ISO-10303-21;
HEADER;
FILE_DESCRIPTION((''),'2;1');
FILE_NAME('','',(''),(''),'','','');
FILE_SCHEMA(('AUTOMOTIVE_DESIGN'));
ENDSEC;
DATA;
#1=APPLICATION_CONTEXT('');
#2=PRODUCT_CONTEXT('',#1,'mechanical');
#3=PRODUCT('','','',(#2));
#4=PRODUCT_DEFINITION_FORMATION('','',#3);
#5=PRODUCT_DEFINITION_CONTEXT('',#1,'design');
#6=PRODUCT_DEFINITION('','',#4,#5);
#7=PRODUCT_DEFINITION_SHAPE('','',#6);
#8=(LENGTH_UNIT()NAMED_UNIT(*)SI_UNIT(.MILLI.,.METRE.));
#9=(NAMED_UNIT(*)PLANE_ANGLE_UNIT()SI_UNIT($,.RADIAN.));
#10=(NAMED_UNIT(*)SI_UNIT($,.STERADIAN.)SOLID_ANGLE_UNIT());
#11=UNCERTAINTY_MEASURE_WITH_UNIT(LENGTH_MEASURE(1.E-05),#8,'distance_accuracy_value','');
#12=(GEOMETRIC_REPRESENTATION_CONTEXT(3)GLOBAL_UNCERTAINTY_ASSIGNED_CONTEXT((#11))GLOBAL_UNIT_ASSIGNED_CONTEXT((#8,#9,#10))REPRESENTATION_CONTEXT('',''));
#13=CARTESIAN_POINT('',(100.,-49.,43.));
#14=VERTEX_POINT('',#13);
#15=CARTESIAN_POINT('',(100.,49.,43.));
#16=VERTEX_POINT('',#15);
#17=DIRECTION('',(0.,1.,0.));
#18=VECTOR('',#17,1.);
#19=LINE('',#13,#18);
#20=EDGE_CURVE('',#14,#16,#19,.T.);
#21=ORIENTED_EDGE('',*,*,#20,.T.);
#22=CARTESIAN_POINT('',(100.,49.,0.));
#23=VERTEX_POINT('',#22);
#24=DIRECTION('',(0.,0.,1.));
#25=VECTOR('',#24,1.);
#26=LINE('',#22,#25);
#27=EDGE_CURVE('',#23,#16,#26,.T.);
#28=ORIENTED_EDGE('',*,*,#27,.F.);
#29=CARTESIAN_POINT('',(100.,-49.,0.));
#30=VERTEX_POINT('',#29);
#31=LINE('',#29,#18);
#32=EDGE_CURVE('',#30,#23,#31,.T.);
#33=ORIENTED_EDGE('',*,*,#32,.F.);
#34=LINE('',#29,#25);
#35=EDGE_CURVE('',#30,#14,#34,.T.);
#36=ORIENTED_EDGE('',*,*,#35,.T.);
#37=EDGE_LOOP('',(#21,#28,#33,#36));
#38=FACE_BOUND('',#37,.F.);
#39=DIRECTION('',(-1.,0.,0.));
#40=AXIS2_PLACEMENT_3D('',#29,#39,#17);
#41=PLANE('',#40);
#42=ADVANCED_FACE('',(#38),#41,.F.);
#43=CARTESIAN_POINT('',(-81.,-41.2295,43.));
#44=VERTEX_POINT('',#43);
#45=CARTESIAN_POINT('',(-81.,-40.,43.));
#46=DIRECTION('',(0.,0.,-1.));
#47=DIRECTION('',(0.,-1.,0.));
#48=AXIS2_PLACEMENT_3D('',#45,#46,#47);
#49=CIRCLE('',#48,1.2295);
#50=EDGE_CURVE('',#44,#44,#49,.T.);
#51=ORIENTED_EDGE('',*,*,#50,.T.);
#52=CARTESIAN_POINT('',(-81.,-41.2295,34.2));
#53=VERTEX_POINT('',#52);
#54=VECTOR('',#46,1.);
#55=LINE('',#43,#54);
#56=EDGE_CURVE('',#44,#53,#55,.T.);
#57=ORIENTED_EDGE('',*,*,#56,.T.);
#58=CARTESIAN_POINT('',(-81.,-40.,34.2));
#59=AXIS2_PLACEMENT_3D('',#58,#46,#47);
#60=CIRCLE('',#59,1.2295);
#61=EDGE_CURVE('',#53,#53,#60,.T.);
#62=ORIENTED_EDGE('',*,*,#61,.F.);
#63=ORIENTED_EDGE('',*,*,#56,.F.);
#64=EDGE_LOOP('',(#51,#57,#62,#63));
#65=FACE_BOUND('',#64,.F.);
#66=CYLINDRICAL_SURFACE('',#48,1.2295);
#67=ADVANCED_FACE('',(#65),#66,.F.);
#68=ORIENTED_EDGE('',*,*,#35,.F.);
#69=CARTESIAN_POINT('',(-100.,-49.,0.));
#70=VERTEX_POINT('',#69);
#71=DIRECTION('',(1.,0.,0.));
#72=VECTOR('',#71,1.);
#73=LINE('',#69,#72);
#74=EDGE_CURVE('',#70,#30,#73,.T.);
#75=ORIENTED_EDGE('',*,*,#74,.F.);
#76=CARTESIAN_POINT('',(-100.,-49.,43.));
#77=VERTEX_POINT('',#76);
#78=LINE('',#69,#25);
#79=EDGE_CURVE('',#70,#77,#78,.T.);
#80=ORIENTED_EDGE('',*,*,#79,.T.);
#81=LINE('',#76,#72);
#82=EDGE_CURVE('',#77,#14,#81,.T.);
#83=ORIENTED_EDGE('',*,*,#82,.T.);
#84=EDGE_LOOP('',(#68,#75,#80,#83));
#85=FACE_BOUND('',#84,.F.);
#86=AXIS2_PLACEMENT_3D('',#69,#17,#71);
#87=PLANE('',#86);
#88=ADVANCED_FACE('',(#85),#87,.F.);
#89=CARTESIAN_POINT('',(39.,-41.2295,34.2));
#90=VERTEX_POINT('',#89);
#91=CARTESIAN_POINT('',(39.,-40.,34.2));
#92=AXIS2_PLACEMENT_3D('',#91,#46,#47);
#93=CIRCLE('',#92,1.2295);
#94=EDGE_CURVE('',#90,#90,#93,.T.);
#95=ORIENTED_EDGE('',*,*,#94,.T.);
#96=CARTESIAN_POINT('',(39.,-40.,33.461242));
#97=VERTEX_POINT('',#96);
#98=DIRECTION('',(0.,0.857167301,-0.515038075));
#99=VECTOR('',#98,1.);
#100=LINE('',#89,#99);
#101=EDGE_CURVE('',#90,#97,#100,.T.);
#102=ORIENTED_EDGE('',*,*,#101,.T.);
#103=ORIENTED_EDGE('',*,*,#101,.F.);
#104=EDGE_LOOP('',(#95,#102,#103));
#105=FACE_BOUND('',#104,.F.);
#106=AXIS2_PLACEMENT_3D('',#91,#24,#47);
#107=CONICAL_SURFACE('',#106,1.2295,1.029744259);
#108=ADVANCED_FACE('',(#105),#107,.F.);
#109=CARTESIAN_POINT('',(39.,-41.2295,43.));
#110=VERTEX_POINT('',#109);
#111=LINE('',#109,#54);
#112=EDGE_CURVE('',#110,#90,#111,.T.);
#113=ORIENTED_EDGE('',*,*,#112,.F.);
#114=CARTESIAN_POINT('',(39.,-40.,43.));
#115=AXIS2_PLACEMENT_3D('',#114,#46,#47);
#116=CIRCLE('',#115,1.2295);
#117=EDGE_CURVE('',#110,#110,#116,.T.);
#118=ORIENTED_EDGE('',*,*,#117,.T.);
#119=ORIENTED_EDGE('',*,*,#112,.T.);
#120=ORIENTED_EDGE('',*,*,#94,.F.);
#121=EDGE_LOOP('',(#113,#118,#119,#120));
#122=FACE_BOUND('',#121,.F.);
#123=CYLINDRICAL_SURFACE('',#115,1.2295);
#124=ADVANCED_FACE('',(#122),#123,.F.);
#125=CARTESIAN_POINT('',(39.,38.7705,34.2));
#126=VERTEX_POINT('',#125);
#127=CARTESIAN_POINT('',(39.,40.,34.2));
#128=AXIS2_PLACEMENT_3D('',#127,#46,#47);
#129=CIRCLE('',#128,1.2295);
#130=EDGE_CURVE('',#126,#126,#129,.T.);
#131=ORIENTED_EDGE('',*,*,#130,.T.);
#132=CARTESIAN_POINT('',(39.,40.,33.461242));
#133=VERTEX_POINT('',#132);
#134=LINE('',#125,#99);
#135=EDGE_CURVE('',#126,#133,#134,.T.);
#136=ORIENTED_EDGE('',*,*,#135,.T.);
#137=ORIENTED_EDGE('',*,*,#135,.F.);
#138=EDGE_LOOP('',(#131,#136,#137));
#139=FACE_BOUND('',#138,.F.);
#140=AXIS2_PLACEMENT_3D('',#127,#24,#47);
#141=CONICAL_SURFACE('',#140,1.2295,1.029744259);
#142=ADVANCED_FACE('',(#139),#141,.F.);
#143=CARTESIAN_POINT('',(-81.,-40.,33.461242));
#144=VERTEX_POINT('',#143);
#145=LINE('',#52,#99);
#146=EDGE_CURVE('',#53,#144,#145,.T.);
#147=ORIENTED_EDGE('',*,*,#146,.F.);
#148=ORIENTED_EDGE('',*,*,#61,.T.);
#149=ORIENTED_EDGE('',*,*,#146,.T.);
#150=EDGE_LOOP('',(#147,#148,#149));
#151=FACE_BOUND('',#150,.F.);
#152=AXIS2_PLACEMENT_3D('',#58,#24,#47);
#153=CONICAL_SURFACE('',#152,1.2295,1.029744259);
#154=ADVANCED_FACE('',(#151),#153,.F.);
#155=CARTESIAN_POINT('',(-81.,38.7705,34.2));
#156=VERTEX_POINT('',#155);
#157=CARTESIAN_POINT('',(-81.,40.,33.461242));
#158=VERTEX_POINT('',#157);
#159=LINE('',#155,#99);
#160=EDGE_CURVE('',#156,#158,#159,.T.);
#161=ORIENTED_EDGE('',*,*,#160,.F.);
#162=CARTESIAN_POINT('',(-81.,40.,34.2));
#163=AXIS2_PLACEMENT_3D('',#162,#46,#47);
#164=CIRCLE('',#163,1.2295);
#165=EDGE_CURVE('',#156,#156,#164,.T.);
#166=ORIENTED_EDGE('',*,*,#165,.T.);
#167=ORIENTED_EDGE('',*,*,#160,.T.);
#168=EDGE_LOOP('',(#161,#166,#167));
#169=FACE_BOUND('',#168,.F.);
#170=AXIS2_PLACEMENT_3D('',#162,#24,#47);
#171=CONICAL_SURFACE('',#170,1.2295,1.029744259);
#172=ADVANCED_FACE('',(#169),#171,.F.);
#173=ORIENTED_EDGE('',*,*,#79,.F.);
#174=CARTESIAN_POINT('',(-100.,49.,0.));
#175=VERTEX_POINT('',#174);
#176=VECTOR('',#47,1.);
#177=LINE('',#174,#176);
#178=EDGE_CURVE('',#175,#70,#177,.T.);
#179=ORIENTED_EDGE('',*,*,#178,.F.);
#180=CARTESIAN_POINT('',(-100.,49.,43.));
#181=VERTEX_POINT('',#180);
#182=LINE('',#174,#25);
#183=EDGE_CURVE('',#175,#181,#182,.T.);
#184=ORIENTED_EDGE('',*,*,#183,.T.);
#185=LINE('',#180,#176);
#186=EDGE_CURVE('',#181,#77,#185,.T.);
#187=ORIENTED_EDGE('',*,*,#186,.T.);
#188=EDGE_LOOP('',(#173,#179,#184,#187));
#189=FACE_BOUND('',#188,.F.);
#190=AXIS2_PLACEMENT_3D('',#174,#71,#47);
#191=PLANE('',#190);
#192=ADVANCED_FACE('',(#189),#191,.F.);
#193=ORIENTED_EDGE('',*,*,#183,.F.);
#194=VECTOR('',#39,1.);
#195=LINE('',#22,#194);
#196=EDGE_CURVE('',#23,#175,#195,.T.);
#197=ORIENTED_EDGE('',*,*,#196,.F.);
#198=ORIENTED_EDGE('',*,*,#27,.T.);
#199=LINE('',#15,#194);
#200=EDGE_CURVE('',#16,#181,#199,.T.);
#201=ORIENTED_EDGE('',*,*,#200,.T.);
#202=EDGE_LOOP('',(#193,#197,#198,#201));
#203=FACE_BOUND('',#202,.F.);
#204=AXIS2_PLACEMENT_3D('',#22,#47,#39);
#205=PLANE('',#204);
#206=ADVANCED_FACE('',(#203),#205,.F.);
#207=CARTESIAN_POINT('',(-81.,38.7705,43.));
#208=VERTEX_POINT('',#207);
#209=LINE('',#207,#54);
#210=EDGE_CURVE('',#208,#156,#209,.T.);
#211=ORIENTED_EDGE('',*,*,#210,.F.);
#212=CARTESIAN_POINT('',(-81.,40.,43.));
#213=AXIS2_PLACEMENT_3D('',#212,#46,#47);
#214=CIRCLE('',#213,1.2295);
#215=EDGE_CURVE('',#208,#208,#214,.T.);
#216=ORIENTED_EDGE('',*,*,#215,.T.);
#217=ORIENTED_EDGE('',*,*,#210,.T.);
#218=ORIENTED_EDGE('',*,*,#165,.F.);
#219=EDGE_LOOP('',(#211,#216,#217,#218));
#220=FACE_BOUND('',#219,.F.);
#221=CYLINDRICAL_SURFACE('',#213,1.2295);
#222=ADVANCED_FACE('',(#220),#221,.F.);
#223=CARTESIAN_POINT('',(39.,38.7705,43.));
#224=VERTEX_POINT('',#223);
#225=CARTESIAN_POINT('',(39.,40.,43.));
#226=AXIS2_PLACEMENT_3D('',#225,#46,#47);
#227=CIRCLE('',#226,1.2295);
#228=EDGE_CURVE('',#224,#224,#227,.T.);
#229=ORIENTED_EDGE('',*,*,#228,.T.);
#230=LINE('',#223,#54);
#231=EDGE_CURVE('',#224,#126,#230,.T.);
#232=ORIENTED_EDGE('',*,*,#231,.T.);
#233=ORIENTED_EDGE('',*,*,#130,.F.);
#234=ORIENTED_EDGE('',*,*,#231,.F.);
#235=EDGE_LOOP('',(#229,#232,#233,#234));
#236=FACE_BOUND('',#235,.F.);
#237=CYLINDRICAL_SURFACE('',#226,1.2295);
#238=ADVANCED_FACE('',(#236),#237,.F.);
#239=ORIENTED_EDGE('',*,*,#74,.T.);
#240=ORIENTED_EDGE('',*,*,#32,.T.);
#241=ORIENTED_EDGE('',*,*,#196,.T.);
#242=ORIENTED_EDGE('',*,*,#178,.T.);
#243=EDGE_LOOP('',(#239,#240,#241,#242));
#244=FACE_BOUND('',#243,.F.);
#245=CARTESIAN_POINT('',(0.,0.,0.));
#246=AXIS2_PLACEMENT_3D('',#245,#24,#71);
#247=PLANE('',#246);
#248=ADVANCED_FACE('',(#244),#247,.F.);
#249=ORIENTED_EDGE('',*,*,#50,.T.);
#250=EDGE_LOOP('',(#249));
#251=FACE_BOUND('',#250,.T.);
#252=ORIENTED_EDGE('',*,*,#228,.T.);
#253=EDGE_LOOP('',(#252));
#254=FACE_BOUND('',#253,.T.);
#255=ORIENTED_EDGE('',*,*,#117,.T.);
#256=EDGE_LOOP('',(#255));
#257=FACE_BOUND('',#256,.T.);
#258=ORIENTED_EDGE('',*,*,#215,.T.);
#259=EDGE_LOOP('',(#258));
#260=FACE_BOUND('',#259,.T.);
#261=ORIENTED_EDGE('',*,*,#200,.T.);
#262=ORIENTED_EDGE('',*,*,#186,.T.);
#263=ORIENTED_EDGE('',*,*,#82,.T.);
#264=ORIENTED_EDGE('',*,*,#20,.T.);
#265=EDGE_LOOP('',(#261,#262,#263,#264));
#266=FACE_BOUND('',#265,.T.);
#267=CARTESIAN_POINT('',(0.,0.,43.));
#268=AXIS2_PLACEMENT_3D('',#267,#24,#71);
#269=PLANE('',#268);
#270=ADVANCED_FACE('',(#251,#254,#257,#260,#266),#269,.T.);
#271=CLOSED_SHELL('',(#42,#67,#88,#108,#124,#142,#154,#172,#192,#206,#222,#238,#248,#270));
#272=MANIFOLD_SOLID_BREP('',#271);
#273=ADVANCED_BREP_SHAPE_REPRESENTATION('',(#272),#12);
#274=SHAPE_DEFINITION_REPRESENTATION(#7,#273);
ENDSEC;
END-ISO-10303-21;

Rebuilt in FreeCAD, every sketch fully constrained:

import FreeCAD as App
import Part
import Sketcher
from FreeCAD import Vector
Q = App.Units.Quantity


def add_polygon(sketch, points):
    """Adds a closed chain of lines whose ends are joined by coincident constraints."""
    first, n = sketch.GeometryCount, len(points)
    for a, b in zip(points, points[1:] + points[:1]):
        sketch.addGeometry(Part.LineSegment(App.Vector(*a, 0), App.Vector(*b, 0)), False)
    for i in range(n):
        sketch.addConstraint(Sketcher.Constraint("Coincident", first + i, 2, first + (i + 1) % n, 1))

doc = App.newDocument("Part")
params = doc.addObject("Spreadsheet::Sheet", "Params")
for row, (alias, value) in enumerate([
    ("sketch1_width", "200 mm"),
    ("sketch1_height", "98 mm"),
    ("pad1_length", "43 mm"),
    ("hole_diameter", "2.459 mm"),
    ("hole_depth", "8.8 mm"),
], start=1):
    params.set(f"A{row}", alias)
    params.set(f"B{row}", "=" + value)
    params.setAlias(f"B{row}", alias)

body = doc.addObject("PartDesign::Body", "Body")

# Sketch on XY plane
sketch1 = body.newObject("Sketcher::SketchObject", "Sketch")
sketch1.AttachmentSupport = (doc.getObject("XY_Plane"), [""])
sketch1.MapMode = "FlatFace"
add_polygon(sketch1, [(-100, 49), (-100, -49), (100, -49), (100, 49)])  # lines 0-3
sketch1.addConstraint([
    Sketcher.Constraint("Vertical", 0),
    Sketcher.Constraint("Horizontal", 1),
    Sketcher.Constraint("Vertical", 2),
    Sketcher.Constraint("Horizontal", 3),
    Sketcher.Constraint("Symmetric", 0, 2, 2, 2, -1, 1),
    Sketcher.Constraint("DistanceX", 1, 1, 1, 2, Q("200 mm")),
    Sketcher.Constraint("DistanceY", 0, 2, 0, 1, Q("98 mm")),
])
sketch1.setExpression("Constraints[9]", "Params.sketch1_width")
sketch1.setExpression("Constraints[10]", "Params.sketch1_height")
pad1 = body.newObject("PartDesign::Pad", "Pad")
pad1.Profile = sketch1
pad1.setExpression("Length", "Params.pad1_length")

# Sketch on XY plane
sketch2 = body.newObject("Sketcher::SketchObject", "Sketch001")
sketch2.AttachmentSupport = (doc.getObject("XY_Plane"), [""])
sketch2.MapMode = "FlatFace"
sketch2.AttachmentOffset = App.Placement(Vector(0, 0, 43), App.Rotation())
sketch2.addGeometry([
    Part.Circle(Vector(-81, 40, 0), Vector(0, 0, 1), 1.2),
    Part.Circle(Vector(-81, -40, 0), Vector(0, 0, 1), 1.2),
    Part.Circle(Vector(39, 40, 0), Vector(0, 0, 1), 1.2),
    Part.Circle(Vector(39, -40, 0), Vector(0, 0, 1), 1.2),
], False)
sketch2.addConstraint([
    Sketcher.Constraint("Equal", 0, 1),
    Sketcher.Constraint("Equal", 1, 2),
    Sketcher.Constraint("Equal", 2, 3),
    Sketcher.Constraint("Symmetric", 0, 3, 1, 3, -1),
    Sketcher.Constraint("Symmetric", 2, 3, 3, 3, -1),
    Sketcher.Constraint("Horizontal", 0, 3, 2, 3),
    Sketcher.Constraint("Diameter", 0, Q("2.459 mm")),
    Sketcher.Constraint("DistanceX", 0, 3, -1, 1, Q("81 mm")),
    Sketcher.Constraint("DistanceY", -1, 1, 0, 3, Q("40 mm")),
    Sketcher.Constraint("DistanceX", -1, 1, 2, 3, Q("39 mm")),
])
doc.recompute()
hole = body.newObject("PartDesign::Hole", "Hole")
hole.Profile = sketch2
hole.ThreadType = "None"
hole.setExpression("Diameter", "Params.hole_diameter")
hole.DepthType = "Dimension"
hole.setExpression("Depth", "Params.hole_depth")
hole.DrillPoint = "Angled"
hole.DrillPointAngle = 118

doc.recompute()
